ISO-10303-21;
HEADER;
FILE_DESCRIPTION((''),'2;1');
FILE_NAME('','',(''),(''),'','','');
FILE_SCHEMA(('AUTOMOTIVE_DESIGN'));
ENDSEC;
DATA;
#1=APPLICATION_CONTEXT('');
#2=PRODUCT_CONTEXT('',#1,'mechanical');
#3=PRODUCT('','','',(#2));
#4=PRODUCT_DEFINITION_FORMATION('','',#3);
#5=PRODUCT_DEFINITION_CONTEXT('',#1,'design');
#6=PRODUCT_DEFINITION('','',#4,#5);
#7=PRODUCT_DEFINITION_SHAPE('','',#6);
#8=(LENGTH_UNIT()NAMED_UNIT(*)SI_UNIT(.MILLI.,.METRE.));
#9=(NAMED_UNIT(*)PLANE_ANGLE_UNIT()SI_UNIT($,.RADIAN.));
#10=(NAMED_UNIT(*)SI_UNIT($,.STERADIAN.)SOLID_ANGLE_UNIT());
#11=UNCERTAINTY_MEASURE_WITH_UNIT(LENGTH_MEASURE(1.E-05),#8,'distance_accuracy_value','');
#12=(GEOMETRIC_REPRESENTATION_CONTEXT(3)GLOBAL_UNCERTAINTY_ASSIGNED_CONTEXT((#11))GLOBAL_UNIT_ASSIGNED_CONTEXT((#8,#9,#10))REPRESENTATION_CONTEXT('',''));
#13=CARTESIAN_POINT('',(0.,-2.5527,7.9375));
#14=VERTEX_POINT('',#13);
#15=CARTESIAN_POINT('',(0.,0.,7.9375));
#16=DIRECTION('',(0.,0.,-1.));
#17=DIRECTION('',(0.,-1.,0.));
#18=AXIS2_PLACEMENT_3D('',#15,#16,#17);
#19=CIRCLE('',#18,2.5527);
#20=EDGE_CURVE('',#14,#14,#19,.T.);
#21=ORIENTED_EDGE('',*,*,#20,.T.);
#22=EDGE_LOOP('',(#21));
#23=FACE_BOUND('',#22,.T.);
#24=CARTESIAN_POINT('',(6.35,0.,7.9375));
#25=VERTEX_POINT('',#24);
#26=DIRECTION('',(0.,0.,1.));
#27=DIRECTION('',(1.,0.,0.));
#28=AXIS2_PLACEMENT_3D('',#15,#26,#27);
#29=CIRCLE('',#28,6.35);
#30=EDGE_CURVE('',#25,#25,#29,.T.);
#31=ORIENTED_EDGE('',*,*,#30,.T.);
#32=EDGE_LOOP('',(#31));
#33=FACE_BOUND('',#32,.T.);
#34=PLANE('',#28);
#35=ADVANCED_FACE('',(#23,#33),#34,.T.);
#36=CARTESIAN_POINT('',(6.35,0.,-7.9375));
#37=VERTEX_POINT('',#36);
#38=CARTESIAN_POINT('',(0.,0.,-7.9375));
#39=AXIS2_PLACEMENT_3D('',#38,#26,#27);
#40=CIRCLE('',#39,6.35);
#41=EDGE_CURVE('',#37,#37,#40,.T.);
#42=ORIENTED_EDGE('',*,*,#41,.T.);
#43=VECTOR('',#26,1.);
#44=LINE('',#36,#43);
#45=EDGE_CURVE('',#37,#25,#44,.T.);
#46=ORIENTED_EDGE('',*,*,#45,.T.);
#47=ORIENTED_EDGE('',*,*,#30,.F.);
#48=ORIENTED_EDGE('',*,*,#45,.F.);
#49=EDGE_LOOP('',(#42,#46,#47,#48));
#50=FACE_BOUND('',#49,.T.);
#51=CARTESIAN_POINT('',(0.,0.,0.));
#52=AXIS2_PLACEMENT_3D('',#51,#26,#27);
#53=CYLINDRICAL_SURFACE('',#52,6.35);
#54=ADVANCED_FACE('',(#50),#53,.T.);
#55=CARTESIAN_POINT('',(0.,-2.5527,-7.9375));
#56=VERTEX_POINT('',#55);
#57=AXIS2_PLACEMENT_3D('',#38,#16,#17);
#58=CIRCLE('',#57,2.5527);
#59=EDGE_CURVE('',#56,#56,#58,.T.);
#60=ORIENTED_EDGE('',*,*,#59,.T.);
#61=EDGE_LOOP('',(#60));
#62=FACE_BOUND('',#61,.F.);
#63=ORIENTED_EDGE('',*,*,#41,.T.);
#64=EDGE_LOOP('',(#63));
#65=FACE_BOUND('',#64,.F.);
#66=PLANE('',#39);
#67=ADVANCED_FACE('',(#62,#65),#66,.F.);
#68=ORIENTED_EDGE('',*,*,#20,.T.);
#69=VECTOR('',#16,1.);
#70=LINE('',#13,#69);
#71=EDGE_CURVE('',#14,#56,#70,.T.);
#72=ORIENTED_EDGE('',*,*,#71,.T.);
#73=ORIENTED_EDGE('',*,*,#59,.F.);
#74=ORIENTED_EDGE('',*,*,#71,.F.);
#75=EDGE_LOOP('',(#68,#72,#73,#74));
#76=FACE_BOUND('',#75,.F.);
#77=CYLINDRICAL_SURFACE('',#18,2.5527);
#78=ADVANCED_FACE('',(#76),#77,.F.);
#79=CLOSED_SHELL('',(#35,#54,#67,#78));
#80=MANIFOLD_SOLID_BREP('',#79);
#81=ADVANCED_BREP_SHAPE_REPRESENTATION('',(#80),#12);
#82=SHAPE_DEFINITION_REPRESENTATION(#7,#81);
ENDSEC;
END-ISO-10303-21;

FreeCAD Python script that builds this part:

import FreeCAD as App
import Part
import Sketcher

V = App.Vector
Q = App.Units.Quantity

doc = App.newDocument("Part")
body = doc.addObject("PartDesign::Body", "Body")

sketch1 = body.newObject("Sketcher::SketchObject", "Sketch")
sketch1.AttachmentSupport = (doc.getObject("XY_Plane"), [""])
sketch1.MapMode = "FlatFace"
sketch1.addGeometry(Part.Circle(V(0, 0, 0), V(0, 0, 1), 6), False)
sketch1.addConstraint([
    Sketcher.Constraint("Coincident", 0, 3, -1, 1),
    Sketcher.Constraint("Diameter", 0, Q("0.5 in")),
])
pad1 = body.newObject("PartDesign::Pad", "Pad")
pad1.Profile = sketch1
pad1.Length = Q("0.625 in")
pad1.Midplane = True

sketch2 = body.newObject("Sketcher::SketchObject", "Sketch001")
sketch2.AttachmentSupport = (doc.getObject("XY_Plane"), [""])
sketch2.MapMode = "FlatFace"
sketch2.AttachmentOffset = App.Placement(V(0, 0, 0.3125 * 25.4), App.Rotation())
sketch2.addGeometry(Part.Circle(V(0, 0, 0), V(0, 0, 1), 2.6), False)
sketch2.addConstraint([
    Sketcher.Constraint("Coincident", 0, 3, -1, 1),
    Sketcher.Constraint("Diameter", 0, Q("0.201 in")),
])
doc.recompute()
hole = body.newObject("PartDesign::Hole", "Hole")
hole.Profile = sketch2
hole.ThreadType = "None"
hole.Diameter = Q("0.201 in")
hole.DepthType = "ThroughAll"

doc.recompute()
